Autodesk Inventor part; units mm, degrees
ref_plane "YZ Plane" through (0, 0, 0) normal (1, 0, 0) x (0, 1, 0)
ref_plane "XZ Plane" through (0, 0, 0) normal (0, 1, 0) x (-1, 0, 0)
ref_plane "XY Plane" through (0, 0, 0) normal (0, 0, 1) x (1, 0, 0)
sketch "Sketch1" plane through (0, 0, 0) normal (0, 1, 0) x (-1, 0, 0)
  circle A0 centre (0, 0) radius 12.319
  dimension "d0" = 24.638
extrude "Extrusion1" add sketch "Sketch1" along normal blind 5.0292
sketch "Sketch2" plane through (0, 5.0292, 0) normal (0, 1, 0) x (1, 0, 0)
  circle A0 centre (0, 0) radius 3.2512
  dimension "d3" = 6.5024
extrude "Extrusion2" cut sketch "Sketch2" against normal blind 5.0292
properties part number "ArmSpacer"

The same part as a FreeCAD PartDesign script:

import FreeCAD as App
import Part
import Sketcher

V = App.Vector
Q = App.Units.Quantity

doc = App.newDocument("Part")
body = doc.addObject("PartDesign::Body", "Body")

# Sketch on XZ plane
sketch1 = body.newObject("Sketcher::SketchObject", "Sketch")
sketch1.AttachmentSupport = (doc.getObject("XZ_Plane"), [""])
sketch1.MapMode = "FlatFace"
sketch1.addGeometry(Part.Circle(V(0, 0, 0), V(0, 0, 1), 12.319), False)
sketch1.addConstraint([
    Sketcher.Constraint("Coincident", 0, 3, -1, 1),
    Sketcher.Constraint("Diameter", 0, Q("0.97 in")),
])
pad1 = body.newObject("PartDesign::Pad", "Pad")
pad1.Profile = sketch1
pad1.Length = Q("0.198 in")
pad1.Reversed = True

# Sketch on XZ plane
sketch2 = body.newObject("Sketcher::SketchObject", "Sketch001")
sketch2.AttachmentSupport = (doc.getObject("XZ_Plane"), [""])
sketch2.MapMode = "FlatFace"
sketch2.AttachmentOffset = App.Placement(V(0, 0, -0.198 * 25.4), App.Rotation())
sketch2.addGeometry(Part.Circle(V(0, 0, 0), V(0, 0, 1), 3.2512), False)
sketch2.addConstraint([
    Sketcher.Constraint("Coincident", 0, 3, -1, 1),
    Sketcher.Constraint("Diameter", 0, Q("0.256 in")),
])
pocket1 = body.newObject("PartDesign::Pocket", "Pocket")
pocket1.Profile = sketch2
pocket1.Length = Q("0.198 in")
pocket1.Reversed = True

doc.recompute()
